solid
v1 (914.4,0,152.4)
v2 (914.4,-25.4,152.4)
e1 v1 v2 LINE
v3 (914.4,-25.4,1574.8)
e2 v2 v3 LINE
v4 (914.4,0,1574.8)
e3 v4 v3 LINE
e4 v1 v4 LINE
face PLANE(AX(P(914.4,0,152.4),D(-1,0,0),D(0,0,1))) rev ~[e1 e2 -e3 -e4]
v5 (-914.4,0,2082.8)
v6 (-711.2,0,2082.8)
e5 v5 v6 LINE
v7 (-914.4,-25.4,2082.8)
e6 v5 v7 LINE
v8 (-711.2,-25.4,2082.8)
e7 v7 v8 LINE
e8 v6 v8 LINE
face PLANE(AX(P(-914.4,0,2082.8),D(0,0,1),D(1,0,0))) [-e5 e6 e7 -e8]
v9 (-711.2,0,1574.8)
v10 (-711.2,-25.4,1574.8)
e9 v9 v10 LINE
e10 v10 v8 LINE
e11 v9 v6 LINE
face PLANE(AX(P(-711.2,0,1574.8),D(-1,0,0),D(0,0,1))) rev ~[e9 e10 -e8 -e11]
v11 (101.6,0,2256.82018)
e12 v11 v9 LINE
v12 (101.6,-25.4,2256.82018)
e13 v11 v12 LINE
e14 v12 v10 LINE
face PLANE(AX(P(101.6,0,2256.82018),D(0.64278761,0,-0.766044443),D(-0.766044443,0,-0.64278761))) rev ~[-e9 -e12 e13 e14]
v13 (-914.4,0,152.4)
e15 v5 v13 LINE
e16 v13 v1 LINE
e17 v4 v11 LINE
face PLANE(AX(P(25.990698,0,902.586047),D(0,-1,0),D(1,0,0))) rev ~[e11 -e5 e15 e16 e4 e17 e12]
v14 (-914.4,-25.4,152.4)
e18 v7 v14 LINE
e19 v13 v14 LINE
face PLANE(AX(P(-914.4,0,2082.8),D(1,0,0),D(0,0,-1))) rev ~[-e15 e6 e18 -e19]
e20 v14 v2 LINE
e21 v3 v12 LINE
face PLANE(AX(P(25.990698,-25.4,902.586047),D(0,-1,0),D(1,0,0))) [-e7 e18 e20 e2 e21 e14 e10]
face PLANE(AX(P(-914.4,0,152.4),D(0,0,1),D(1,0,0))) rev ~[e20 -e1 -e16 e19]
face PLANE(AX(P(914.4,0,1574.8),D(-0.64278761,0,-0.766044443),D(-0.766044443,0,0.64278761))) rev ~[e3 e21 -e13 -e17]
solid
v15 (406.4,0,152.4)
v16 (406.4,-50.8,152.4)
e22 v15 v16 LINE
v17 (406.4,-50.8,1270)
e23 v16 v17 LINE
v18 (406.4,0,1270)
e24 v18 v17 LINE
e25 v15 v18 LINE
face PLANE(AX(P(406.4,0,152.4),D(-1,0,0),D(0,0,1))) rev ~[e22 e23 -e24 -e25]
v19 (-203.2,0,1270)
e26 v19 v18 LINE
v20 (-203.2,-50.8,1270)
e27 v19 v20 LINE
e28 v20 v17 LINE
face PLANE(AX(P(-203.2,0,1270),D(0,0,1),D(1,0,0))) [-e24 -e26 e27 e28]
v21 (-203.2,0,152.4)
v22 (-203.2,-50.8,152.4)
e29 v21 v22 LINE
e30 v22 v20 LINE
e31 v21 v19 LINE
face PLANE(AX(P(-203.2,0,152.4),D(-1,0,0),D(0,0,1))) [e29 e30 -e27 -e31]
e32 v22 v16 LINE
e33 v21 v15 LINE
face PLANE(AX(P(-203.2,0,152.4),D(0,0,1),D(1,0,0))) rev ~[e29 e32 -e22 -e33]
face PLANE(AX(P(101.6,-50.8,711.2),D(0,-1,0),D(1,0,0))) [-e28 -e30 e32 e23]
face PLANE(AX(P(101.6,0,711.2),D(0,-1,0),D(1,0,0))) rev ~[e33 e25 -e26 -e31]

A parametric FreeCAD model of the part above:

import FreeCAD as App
import Part
import Sketcher
from FreeCAD import Vector
Q = App.Units.Quantity


def add_polygon(sketch, points):
    """Adds a closed chain of lines whose ends are joined by coincident constraints."""
    first, n = sketch.GeometryCount, len(points)
    for a, b in zip(points, points[1:] + points[:1]):
        sketch.addGeometry(Part.LineSegment(App.Vector(*a, 0), App.Vector(*b, 0)), False)
    for i in range(n):
        sketch.addConstraint(Sketcher.Constraint("Coincident", first + i, 2, first + (i + 1) % n, 1))

doc = App.newDocument("Part")
body = doc.addObject("PartDesign::Body", "Body")

sketch1 = body.newObject("Sketcher::SketchObject", "Sketch")
sketch1.AttachmentSupport = (doc.getObject("XZ_Plane"), [""])
sketch1.MapMode = "FlatFace"
add_polygon(sketch1, [(-203, 1270), (-203, 152), (406, 152), (406, 1270)])
sketch1.addConstraint([
    Sketcher.Constraint("Vertical", 0),
    Sketcher.Constraint("Horizontal", 1),
    Sketcher.Constraint("Vertical", 2),
    Sketcher.Constraint("Horizontal", 3),
    Sketcher.Constraint("DistanceX", 1, 1, 1, 2, Q("24 in")),
    Sketcher.Constraint("DistanceY", 0, 2, 0, 1, Q("44 in")),
    Sketcher.Constraint("DistanceX", 0, 2, -1, 1, Q("8 in")),
    Sketcher.Constraint("DistanceY", -1, 1, 0, 2, Q("6 in")),
])
pad1 = body.newObject("PartDesign::Pad", "Pad")
pad1.Profile = sketch1
pad1.Length = Q("2 in")
body2 = doc.addObject("PartDesign::Body", "Body001")

sketch2 = body2.newObject("Sketcher::SketchObject", "Sketch001")
sketch2.AttachmentSupport = (doc.getObject("XZ_Plane001"), [""])
sketch2.MapMode = "FlatFace"
add_polygon(sketch2, [(914, 152), (914, 1575), (102, 2257), (-711, 1575), (-711, 2083), (-914, 2083), (-914, 152)])
sketch2.addConstraint([
    Sketcher.Constraint("Vertical", 0),
    Sketcher.Constraint("Vertical", 3),
    Sketcher.Constraint("Horizontal", 4),
    Sketcher.Constraint("Vertical", 5),
    Sketcher.Constraint("Horizontal", 6),
    Sketcher.Constraint("Horizontal", 0, 2, 2, 2),
    Sketcher.Constraint("Equal", 1, 2),
    Sketcher.Constraint("DistanceX", 4, 2, 4, 1, Q("8 in")),
    Sketcher.Constraint("DistanceX", 6, 1, 6, 2, Q("72 in")),
    Sketcher.Constraint("DistanceY", 0, 1, 0, 2, Q("56 in")),
    Sketcher.Constraint("DistanceY", 3, 1, 3, 2, Q("20 in")),
    Sketcher.Constraint("DistanceX", -1, 1, 0, 2, Q("36 in")),
    Sketcher.Constraint("DistanceY", -1, 1, 0, 2, Q("62 in")),
    Sketcher.Constraint("Angle", 1, Q("140 deg")),
])
pad2 = body2.newObject("PartDesign::Pad", "Pad001")
pad2.Profile = sketch2
pad2.Length = Q("1 in")

doc.recompute()
